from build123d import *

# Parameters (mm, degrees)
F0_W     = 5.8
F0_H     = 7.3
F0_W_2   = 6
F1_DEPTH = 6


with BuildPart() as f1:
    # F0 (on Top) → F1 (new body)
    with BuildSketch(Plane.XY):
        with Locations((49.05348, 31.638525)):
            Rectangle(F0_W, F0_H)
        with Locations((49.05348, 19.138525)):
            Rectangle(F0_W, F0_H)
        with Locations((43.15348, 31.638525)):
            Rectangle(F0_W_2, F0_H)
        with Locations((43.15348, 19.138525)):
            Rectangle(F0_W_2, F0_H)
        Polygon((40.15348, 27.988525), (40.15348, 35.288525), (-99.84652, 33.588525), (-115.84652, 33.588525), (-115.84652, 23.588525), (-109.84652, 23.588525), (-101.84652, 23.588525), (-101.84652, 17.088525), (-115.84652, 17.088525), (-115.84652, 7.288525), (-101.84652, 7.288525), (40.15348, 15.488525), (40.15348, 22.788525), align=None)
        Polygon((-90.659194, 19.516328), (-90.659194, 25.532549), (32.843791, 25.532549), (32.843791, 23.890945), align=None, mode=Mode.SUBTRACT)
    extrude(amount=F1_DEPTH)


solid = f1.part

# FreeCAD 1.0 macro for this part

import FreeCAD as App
import Part
import Sketcher


def add_polygon(sketch, points):
    """Adds a closed chain of lines whose ends are joined by coincident constraints."""
    first, n = sketch.GeometryCount, len(points)
    for a, b in zip(points, points[1:] + points[:1]):
        sketch.addGeometry(Part.LineSegment(App.Vector(*a, 0), App.Vector(*b, 0)), False)
    for i in range(n):
        sketch.addConstraint(Sketcher.Constraint("Coincident", first + i, 2, first + (i + 1) % n, 1))

doc = App.newDocument("Part")
body = doc.addObject("PartDesign::Body", "Body")

# Sketch on XY plane
sketch1 = body.newObject("Sketcher::SketchObject", "Sketch")
sketch1.AttachmentSupport = (doc.getObject("XY_Plane"), [""])
sketch1.MapMode = "FlatFace"
add_polygon(sketch1, [(52, 28), (52, 35.3), (40.2, 35.3), (-99.8, 33.6), (-115.8, 33.6), (-115.8, 23.6), (-101.8, 23.6), (-101.8, 17.1), (-115.8, 17.1), (-115.8, 7.3), (-101.8, 7.3), (40.2, 15.5), (52, 15.5), (52, 22.8), (40.2, 22.8), (40.2, 28)])  # lines 0-15
add_polygon(sketch1, [(32.8, 23.9), (-90.7, 19.5), (-90.7, 25.5), (32.8, 25.5)])  # lines 16-19
sketch1.addConstraint(Sketcher.Constraint("Vertical", 0))
sketch1.addConstraint(Sketcher.Constraint("Horizontal", 1))
sketch1.addConstraint(Sketcher.Constraint("Horizontal", 3))
sketch1.addConstraint(Sketcher.Constraint("Vertical", 4))
sketch1.addConstraint(Sketcher.Constraint("Horizontal", 5))
sketch1.addConstraint(Sketcher.Constraint("Vertical", 6))
sketch1.addConstraint(Sketcher.Constraint("Horizontal", 7))
sketch1.addConstraint(Sketcher.Constraint("Vertical", 8))
sketch1.addConstraint(Sketcher.Constraint("Horizontal", 9))
sketch1.addConstraint(Sketcher.Constraint("Horizontal", 11))
sketch1.addConstraint(Sketcher.Constraint("Vertical", 12))
sketch1.addConstraint(Sketcher.Constraint("Horizontal", 13))
sketch1.addConstraint(Sketcher.Constraint("Vertical", 14))
sketch1.addConstraint(Sketcher.Constraint("Horizontal", 15))
sketch1.addConstraint(Sketcher.Constraint("Vertical", 17))
sketch1.addConstraint(Sketcher.Constraint("Horizontal", 18))
sketch1.addConstraint(Sketcher.Constraint("Vertical", 19))
sketch1.addConstraint(Sketcher.Constraint("Vertical", 4, 2, 7, 2))
sketch1.addConstraint(Sketcher.Constraint("Vertical", 6, 2, 9, 2))
sketch1.addConstraint(Sketcher.Constraint("Vertical", 1, 2, 10, 2))
sketch1.addConstraint(Sketcher.Constraint("Vertical", 0, 2, 11, 2))
sketch1.addConstraint(Sketcher.Constraint("Vertical", 10, 2, 13, 2))
sketch1.addConstraint(Sketcher.Constraint("Equal", 0, 12))
sketch1.addConstraint(Sketcher.Constraint("DistanceX", 3, 2, 3, 1, 16.0))
sketch1.addConstraint(Sketcher.Constraint("DistanceX", 5, 1, 5, 2, 14.0))
sketch1.addConstraint(Sketcher.Constraint("DistanceY", 4, 2, 4, 1, 10.0))
sketch1.addConstraint(Sketcher.Constraint("DistanceX", 1, 2, 1, 1, 11.8))
sketch1.addConstraint(Sketcher.Constraint("DistanceY", 0, 1, 0, 2, 7.3))
sketch1.addConstraint(Sketcher.Constraint("DistanceY", 6, 2, 6, 1, 6.5))
sketch1.addConstraint(Sketcher.Constraint("DistanceY", 8, 2, 8, 1, 9.8))
sketch1.addConstraint(Sketcher.Constraint("DistanceY", 14, 1, 14, 2, 5.2))
sketch1.addConstraint(Sketcher.Constraint("DistanceX", 2, 2, 1, 2, 140.0))
sketch1.addConstraint(Sketcher.Constraint("DistanceY", 2, 2, 1, 2, 1.7))
sketch1.addConstraint(Sketcher.Constraint("DistanceY", 17, 1, 17, 2, 6.016221))
sketch1.addConstraint(Sketcher.Constraint("DistanceX", 18, 1, 18, 2, 123.502985))
sketch1.addConstraint(Sketcher.Constraint("DistanceY", 19, 2, 19, 1, 1.641604))
sketch1.addConstraint(Sketcher.Constraint("DistanceX", -1, 1, 0, 2, 51.95348))
sketch1.addConstraint(Sketcher.Constraint("DistanceY", -1, 1, 16, 2, 19.516328))
sketch1.addConstraint(Sketcher.Constraint("DistanceX", -1, 1, 18, 2, 32.843791))
sketch1.addConstraint(Sketcher.Constraint("DistanceY", 13, 2, 19, 2, 1.10242))
pad1 = body.newObject("PartDesign::Pad", "Pad")
pad1.Profile = sketch1
pad1.Length = 6

doc.recompute()
